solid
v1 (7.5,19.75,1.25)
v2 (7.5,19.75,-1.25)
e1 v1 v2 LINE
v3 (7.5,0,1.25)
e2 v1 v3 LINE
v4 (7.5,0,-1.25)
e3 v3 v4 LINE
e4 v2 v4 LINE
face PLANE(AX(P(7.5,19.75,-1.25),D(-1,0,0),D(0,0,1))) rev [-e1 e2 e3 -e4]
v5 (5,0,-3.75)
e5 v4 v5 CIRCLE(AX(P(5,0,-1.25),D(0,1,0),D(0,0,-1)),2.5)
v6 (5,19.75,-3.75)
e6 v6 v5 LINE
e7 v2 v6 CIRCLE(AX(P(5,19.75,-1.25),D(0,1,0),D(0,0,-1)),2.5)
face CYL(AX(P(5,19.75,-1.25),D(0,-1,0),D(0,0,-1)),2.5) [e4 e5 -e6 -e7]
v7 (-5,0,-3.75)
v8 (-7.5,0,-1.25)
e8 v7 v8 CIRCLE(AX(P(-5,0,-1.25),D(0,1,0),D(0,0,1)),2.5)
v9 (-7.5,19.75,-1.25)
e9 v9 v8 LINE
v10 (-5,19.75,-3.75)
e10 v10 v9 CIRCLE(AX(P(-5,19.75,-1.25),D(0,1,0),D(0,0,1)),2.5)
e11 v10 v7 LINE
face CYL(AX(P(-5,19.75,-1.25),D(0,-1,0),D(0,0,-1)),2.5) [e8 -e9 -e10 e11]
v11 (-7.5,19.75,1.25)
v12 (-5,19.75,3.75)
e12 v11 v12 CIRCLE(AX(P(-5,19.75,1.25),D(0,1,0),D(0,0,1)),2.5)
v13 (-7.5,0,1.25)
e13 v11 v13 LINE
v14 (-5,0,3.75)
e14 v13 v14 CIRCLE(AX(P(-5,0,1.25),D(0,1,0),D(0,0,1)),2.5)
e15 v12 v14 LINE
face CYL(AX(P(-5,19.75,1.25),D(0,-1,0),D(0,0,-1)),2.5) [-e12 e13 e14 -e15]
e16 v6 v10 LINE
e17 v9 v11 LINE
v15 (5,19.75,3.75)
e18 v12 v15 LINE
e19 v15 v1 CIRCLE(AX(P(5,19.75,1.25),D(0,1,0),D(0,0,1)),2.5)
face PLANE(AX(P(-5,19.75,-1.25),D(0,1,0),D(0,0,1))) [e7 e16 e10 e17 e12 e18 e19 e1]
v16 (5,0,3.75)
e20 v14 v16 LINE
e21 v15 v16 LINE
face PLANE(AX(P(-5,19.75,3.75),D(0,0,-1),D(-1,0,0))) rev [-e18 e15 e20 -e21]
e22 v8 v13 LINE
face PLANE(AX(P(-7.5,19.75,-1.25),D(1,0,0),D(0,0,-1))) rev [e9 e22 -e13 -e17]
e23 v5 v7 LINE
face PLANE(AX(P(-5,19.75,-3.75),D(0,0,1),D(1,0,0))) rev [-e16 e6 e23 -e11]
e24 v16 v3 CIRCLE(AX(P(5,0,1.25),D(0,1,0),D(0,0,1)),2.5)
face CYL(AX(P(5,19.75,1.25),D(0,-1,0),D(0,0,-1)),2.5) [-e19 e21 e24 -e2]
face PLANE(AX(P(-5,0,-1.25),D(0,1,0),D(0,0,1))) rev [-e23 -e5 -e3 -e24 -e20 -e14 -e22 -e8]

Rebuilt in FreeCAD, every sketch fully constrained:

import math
import FreeCAD as App
import Part
import Sketcher

doc = App.newDocument("Part")
body = doc.addObject("PartDesign::Body", "Body")

sketch1 = body.newObject("Sketcher::SketchObject", "Sketch")
sketch1.AttachmentSupport = (doc.getObject("XZ_Plane"), [""])
sketch1.MapMode = "FlatFace"
sketch1.addGeometry([
    Part.LineSegment(App.Vector(5, -3.8, 0), App.Vector(-5, -3.8, 0)),
    Part.ArcOfCircle(Part.Circle(App.Vector(-5, -1.2, 0), App.Vector(0, 0, 1), 2.5), math.radians(180), math.radians(270)),
    Part.LineSegment(App.Vector(-7.5, -1.2, 0), App.Vector(-7.5, 1.2, 0)),
    Part.ArcOfCircle(Part.Circle(App.Vector(-5, 1.2, 0), App.Vector(0, 0, 1), 2.5), math.radians(90), math.radians(180)),
    Part.LineSegment(App.Vector(-5, 3.8, 0), App.Vector(5, 3.8, 0)),
    Part.ArcOfCircle(Part.Circle(App.Vector(5, 1.2, 0), App.Vector(0, 0, 1), 2.5), math.radians(0), math.radians(90)),
    Part.LineSegment(App.Vector(7.5, 1.2, 0), App.Vector(7.5, -1.2, 0)),
    Part.ArcOfCircle(Part.Circle(App.Vector(5, -1.2, 0), App.Vector(0, 0, 1), 2.5), math.radians(-90), math.radians(0)),
], False)
sketch1.addConstraint([
    Sketcher.Constraint("Tangent", 0, 2, 1, 2),
    Sketcher.Constraint("Tangent", 1, 1, 2, 1),
    Sketcher.Constraint("Tangent", 2, 2, 3, 2),
    Sketcher.Constraint("Tangent", 3, 1, 4, 1),
    Sketcher.Constraint("Tangent", 4, 2, 5, 2),
    Sketcher.Constraint("Tangent", 5, 1, 6, 1),
    Sketcher.Constraint("Tangent", 6, 2, 7, 2),
    Sketcher.Constraint("Tangent", 7, 1, 0, 1),
    Sketcher.Constraint("Horizontal", 0),
    Sketcher.Constraint("Vertical", 2),
    Sketcher.Constraint("Horizontal", 4),
    Sketcher.Constraint("Vertical", 6),
    Sketcher.Constraint("Equal", 1, 3),
    Sketcher.Constraint("Equal", 3, 5),
    Sketcher.Constraint("Equal", 5, 7),
    Sketcher.Constraint("Symmetric", 1, 3, 5, 3, -1, 1),
    Sketcher.Constraint("Radius", 1, 2.5),
    Sketcher.Constraint("DistanceX", 0, 2, 0, 1, 10.0),
    Sketcher.Constraint("DistanceY", 2, 1, 2, 2, 2.5),
])
pad1 = body.newObject("PartDesign::Pad", "Pad")
pad1.Profile = sketch1
pad1.Length = 19.75
pad1.Reversed = True

doc.recompute()
